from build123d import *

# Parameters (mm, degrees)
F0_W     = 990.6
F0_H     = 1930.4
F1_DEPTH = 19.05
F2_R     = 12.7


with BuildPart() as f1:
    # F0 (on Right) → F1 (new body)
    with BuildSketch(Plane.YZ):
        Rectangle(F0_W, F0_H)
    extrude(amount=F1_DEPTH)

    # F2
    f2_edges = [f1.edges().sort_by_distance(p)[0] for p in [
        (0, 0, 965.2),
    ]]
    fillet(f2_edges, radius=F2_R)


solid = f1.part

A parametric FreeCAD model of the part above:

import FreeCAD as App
import Part
import Sketcher
from FreeCAD import Vector
Q = App.Units.Quantity


def edges_at(feature, points):
    """Names of the edges that pass closest to the given points."""
    edges = feature.Shape.Edges
    near = lambda p: min(range(len(edges)), key=lambda i: edges[i].distToShape(Part.Vertex(*p))[0])
    return sorted({f"Edge{near(p) + 1}" for p in points})

doc = App.newDocument("Part")
body = doc.addObject("PartDesign::Body", "Body")

# Sketch on YZ plane
sketch1 = body.newObject("Sketcher::SketchObject", "Sketch")
sketch1.AttachmentSupport = (doc.getObject("YZ_Plane"), [""])
sketch1.MapMode = "FlatFace"
sketch1.addGeometry([
    Part.LineSegment(Vector(-495, 965, 0), Vector(-495, -965, 0)),
    Part.LineSegment(Vector(-495, -965, 0), Vector(495, -965, 0)),
    Part.LineSegment(Vector(495, -965, 0), Vector(495, 965, 0)),
    Part.LineSegment(Vector(495, 965, 0), Vector(-495, 965, 0)),
], False)
sketch1.addConstraint([
    Sketcher.Constraint("Coincident", 0, 2, 1, 1),
    Sketcher.Constraint("Coincident", 1, 2, 2, 1),
    Sketcher.Constraint("Coincident", 2, 2, 3, 1),
    Sketcher.Constraint("Coincident", 3, 2, 0, 1),
    Sketcher.Constraint("Vertical", 0),
    Sketcher.Constraint("Horizontal", 1),
    Sketcher.Constraint("Vertical", 2),
    Sketcher.Constraint("Horizontal", 3),
    Sketcher.Constraint("Symmetric", 0, 2, 2, 2, -1, 1),
    Sketcher.Constraint("DistanceX", 1, 1, 1, 2, Q("39 in")),
    Sketcher.Constraint("DistanceY", 0, 2, 0, 1, Q("76 in")),
])
pad1 = body.newObject("PartDesign::Pad", "Pad")
pad1.Profile = sketch1
pad1.Length = Q("0.75 in")
doc.recompute()

fillet = body.newObject("PartDesign::Fillet", "Fillet")
fillet.Base = (pad1, edges_at(pad1, [(0, 0, 965.2)]))
fillet.Radius = Q("0.5 in")

doc.recompute()
